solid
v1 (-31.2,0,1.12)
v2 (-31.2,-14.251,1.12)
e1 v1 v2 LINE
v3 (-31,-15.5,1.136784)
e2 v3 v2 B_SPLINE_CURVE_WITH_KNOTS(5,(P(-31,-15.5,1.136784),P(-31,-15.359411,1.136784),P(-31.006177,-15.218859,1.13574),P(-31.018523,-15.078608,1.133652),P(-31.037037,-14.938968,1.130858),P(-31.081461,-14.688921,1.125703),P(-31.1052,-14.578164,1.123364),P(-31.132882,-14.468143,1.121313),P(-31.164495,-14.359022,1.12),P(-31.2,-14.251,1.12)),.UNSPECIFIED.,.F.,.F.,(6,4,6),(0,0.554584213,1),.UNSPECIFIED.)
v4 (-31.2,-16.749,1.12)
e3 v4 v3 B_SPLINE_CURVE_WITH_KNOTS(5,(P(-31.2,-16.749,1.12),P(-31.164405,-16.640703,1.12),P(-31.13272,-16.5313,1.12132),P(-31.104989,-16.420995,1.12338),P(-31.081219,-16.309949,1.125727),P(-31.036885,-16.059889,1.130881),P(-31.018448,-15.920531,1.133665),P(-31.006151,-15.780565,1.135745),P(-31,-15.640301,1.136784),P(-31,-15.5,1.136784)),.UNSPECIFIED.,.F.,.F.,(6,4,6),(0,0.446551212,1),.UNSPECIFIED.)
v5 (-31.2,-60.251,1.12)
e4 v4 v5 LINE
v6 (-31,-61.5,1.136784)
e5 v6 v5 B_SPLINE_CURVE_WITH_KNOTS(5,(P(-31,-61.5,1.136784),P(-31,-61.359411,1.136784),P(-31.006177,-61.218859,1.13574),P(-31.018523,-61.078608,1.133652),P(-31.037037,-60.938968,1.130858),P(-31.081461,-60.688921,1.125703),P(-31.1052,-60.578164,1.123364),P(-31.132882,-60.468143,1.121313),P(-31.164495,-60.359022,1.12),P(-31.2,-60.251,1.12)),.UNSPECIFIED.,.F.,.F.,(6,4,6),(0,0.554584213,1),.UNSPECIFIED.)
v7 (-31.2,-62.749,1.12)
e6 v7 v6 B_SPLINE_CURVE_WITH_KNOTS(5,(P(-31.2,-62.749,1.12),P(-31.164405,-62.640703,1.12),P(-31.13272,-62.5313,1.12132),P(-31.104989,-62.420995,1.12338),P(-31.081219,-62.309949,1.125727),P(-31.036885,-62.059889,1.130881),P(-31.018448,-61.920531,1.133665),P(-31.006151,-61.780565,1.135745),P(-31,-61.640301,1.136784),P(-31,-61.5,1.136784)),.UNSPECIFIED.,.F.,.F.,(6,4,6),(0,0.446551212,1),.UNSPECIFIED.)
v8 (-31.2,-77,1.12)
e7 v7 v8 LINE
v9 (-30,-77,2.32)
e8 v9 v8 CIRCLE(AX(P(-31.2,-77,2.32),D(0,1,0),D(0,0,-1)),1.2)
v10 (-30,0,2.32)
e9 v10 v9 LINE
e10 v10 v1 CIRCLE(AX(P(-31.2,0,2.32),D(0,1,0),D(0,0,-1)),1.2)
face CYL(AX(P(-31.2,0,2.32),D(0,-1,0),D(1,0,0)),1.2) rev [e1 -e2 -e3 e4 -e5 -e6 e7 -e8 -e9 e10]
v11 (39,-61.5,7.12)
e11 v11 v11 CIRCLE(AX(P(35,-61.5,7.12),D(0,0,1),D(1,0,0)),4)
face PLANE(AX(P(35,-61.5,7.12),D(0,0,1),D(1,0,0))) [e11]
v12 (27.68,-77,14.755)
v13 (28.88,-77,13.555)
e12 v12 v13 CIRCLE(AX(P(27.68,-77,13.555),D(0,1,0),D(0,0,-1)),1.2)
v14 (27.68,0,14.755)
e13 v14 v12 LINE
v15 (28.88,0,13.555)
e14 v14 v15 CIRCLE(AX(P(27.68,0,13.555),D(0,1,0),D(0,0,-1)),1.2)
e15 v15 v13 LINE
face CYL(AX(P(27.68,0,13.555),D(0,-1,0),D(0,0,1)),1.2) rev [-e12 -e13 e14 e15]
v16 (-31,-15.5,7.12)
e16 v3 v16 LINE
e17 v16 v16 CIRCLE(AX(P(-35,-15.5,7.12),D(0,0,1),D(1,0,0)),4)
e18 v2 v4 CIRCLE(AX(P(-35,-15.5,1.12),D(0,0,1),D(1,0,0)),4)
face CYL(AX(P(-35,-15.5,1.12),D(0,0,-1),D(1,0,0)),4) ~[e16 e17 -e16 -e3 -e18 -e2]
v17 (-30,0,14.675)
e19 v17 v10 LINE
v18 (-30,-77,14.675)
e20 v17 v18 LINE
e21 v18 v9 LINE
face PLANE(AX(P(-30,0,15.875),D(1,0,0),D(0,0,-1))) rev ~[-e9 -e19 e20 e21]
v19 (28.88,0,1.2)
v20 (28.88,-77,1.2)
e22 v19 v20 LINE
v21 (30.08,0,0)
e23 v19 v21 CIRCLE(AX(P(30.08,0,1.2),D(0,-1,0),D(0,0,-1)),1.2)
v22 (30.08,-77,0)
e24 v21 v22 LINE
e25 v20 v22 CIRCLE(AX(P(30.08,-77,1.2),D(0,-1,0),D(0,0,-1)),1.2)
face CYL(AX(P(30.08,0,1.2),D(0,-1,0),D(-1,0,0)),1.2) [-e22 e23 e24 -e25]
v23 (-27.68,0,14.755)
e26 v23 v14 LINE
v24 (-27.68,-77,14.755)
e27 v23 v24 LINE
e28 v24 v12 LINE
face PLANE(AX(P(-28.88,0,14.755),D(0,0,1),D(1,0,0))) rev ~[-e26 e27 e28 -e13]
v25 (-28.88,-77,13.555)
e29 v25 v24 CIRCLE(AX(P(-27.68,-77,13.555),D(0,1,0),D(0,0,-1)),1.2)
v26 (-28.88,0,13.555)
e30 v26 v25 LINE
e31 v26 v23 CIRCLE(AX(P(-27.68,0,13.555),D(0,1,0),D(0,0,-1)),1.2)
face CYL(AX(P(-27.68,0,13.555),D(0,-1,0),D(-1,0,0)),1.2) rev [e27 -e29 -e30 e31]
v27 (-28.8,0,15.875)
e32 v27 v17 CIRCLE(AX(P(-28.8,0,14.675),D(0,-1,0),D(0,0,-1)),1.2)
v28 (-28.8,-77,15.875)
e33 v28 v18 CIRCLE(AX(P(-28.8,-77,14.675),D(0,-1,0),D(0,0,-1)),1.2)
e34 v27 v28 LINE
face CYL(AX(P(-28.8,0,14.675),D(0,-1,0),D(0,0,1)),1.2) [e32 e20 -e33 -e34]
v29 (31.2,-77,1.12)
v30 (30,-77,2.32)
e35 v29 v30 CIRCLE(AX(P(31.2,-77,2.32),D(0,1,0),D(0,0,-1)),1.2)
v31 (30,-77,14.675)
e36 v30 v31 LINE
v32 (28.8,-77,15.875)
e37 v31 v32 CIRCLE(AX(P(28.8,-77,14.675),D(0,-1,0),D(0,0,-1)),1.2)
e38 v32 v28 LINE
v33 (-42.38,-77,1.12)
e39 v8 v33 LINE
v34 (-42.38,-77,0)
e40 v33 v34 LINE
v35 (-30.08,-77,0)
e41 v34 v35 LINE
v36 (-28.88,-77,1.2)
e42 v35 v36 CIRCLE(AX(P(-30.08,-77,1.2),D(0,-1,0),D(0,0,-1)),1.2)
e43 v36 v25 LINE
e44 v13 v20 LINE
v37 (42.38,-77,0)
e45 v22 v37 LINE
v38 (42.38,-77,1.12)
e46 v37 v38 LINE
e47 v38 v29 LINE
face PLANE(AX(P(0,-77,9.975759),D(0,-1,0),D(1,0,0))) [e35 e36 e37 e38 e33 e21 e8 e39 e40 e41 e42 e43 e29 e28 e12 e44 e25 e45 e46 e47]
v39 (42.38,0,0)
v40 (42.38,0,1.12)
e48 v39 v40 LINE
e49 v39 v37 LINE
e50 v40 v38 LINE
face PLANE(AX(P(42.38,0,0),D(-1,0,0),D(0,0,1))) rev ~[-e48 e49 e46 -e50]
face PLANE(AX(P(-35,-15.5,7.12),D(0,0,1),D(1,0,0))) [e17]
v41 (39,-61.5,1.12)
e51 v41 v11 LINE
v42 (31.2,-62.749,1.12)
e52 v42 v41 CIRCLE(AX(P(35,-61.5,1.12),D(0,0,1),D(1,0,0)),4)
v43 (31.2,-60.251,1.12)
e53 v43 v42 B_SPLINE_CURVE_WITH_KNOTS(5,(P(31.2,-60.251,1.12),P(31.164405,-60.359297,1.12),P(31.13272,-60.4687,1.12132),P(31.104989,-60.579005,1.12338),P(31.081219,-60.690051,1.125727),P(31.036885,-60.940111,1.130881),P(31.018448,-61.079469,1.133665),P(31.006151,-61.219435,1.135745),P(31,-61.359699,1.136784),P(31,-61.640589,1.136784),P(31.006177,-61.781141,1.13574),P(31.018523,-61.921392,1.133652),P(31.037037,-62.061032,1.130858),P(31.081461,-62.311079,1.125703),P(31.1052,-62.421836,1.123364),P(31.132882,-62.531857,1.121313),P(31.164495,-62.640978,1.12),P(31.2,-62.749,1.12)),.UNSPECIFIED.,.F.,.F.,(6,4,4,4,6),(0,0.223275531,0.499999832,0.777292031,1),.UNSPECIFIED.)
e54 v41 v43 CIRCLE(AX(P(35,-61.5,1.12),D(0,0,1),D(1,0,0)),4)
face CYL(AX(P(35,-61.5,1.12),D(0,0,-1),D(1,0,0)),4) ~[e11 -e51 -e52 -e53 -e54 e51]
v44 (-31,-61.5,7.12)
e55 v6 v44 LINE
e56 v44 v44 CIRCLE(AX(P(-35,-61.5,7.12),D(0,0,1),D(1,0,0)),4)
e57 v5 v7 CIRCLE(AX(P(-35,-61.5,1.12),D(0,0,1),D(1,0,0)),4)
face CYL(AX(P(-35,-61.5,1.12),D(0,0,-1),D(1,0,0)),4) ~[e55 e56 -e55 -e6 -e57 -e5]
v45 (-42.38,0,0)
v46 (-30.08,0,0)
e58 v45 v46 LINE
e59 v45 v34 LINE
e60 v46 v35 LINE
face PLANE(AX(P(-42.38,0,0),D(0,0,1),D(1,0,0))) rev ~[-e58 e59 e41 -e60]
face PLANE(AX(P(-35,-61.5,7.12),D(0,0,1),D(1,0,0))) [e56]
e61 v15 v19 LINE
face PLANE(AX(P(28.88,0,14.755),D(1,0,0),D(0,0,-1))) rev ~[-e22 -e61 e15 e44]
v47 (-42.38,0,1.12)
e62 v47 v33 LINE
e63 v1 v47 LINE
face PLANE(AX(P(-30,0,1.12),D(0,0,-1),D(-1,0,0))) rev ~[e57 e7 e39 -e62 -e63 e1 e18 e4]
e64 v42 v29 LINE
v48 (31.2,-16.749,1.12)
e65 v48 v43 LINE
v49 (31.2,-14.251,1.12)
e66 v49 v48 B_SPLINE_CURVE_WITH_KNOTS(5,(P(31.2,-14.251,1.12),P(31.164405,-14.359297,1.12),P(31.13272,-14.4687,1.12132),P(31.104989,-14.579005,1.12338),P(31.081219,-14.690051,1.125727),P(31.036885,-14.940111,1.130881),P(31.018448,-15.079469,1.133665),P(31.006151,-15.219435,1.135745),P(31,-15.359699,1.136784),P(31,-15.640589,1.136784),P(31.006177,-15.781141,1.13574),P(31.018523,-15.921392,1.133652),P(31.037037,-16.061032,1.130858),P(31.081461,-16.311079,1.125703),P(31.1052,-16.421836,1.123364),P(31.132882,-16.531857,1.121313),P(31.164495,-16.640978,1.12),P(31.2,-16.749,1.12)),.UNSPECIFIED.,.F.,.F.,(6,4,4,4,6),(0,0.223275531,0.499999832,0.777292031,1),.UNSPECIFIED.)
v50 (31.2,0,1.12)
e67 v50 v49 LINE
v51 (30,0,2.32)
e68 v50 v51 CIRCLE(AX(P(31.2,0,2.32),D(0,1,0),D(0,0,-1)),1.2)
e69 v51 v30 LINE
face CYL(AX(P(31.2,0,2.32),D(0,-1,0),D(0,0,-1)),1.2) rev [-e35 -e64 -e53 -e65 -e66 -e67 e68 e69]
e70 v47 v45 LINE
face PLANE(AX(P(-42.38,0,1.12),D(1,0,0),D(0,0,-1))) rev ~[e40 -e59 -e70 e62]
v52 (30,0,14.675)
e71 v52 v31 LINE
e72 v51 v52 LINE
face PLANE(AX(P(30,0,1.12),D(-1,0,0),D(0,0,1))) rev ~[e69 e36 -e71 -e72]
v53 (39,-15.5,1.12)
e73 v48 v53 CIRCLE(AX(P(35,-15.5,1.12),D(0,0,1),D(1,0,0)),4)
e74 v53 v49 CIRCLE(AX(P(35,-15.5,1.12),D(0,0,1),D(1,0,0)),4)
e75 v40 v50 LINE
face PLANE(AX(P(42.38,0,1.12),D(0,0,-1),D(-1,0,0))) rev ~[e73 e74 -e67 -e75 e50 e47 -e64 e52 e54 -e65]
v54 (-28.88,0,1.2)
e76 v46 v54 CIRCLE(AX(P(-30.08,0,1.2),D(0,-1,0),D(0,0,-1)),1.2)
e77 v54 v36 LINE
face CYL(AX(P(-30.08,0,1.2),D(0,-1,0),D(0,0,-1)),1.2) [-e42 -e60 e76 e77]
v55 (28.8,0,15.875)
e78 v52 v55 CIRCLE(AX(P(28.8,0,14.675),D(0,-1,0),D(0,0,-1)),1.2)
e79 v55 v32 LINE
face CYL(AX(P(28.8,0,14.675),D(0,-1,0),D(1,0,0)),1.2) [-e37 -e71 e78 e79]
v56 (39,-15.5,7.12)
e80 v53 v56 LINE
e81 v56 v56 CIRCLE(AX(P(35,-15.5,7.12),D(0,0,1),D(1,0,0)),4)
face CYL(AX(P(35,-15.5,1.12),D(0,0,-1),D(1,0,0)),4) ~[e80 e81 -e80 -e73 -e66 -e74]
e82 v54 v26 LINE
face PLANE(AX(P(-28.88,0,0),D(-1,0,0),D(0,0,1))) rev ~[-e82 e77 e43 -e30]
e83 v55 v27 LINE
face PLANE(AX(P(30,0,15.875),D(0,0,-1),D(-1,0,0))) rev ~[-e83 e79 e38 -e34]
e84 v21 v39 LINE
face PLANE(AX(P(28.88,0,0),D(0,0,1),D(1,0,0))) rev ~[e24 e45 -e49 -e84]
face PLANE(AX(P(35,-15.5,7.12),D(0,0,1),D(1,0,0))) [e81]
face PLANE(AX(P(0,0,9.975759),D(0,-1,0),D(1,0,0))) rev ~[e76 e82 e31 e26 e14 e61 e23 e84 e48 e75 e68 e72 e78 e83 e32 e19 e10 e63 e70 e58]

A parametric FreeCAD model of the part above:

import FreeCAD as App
import Part
import Sketcher

V = App.Vector
Q = App.Units.Quantity


def edges_at(feature, points):
    """Names of the edges that pass closest to the given points."""
    edges = feature.Shape.Edges
    near = lambda p: min(range(len(edges)), key=lambda i: edges[i].distToShape(Part.Vertex(*p))[0])
    return sorted({f"Edge{near(p) + 1}" for p in points})

doc = App.newDocument("Part")
body = doc.addObject("PartDesign::Body", "Body")

# Sketch on XZ plane
sketch1 = body.newObject("Sketcher::SketchObject", "Sketch")
sketch1.AttachmentSupport = (doc.getObject("XZ_Plane"), [""])
sketch1.MapMode = "FlatFace"
sketch1.addGeometry([
    Part.LineSegment(V(-42.4, 1.1, 0), V(-42.4, 0, 0)),  # 0
    Part.LineSegment(V(-42.4, 0, 0), V(-28.9, 0, 0)),  # 1
    Part.LineSegment(V(-28.9, 0, 0), V(-28.9, 14.8, 0)),  # 2
    Part.LineSegment(V(-28.9, 14.8, 0), V(28.9, 14.8, 0)),  # 3
    Part.LineSegment(V(28.9, 14.8, 0), V(28.9, 0, 0)),  # 4
    Part.LineSegment(V(28.9, 0, 0), V(42.4, 0, 0)),  # 5
    Part.LineSegment(V(42.4, 0, 0), V(42.4, 1.1, 0)),  # 6
    Part.LineSegment(V(42.4, 1.1, 0), V(30, 1.1, 0)),  # 7
    Part.LineSegment(V(30, 1.1, 0), V(30, 15.9, 0)),  # 8
    Part.LineSegment(V(30, 15.9, 0), V(-30, 15.9, 0)),  # 9
    Part.LineSegment(V(-30, 15.9, 0), V(-30, 1.1, 0)),  # 10
    Part.LineSegment(V(-30, 1.1, 0), V(-42.4, 1.1, 0)),  # 11
], False)
sketch1.addConstraint([
    Sketcher.Constraint("Coincident", 0, 2, 1, 1),
    Sketcher.Constraint("Coincident", 1, 2, 2, 1),
    Sketcher.Constraint("Coincident", 2, 2, 3, 1),
    Sketcher.Constraint("Coincident", 3, 2, 4, 1),
    Sketcher.Constraint("Coincident", 4, 2, 5, 1),
    Sketcher.Constraint("Coincident", 5, 2, 6, 1),
    Sketcher.Constraint("Coincident", 6, 2, 7, 1),
    Sketcher.Constraint("Coincident", 7, 2, 8, 1),
    Sketcher.Constraint("Coincident", 8, 2, 9, 1),
    Sketcher.Constraint("Coincident", 9, 2, 10, 1),
    Sketcher.Constraint("Coincident", 10, 2, 11, 1),
    Sketcher.Constraint("Coincident", 11, 2, 0, 1),
    Sketcher.Constraint("Vertical", 0),
    Sketcher.Constraint("Horizontal", 1),
    Sketcher.Constraint("Vertical", 2),
    Sketcher.Constraint("Horizontal", 3),
    Sketcher.Constraint("Vertical", 4),
    Sketcher.Constraint("Horizontal", 5),
    Sketcher.Constraint("Vertical", 6),
    Sketcher.Constraint("Horizontal", 7),
    Sketcher.Constraint("Vertical", 8),
    Sketcher.Constraint("Horizontal", 9),
    Sketcher.Constraint("Vertical", 10),
    Sketcher.Constraint("Horizontal", 11),
    Sketcher.Constraint("Symmetric", 1, 2, 4, 2, -1, 1),
    Sketcher.Constraint("Symmetric", 0, 2, 5, 2, -2),
    Sketcher.Constraint("Symmetric", 7, 2, 10, 2, -2),
    Sketcher.Constraint("Equal", 4, 8),
    Sketcher.Constraint("DistanceX", 9, 2, 9, 1, Q("60 mm")),
    Sketcher.Constraint("DistanceX", 1, 1, 1, 2, Q("13.5 mm")),
    Sketcher.Constraint("DistanceX", 3, 1, 3, 2, Q("57.76 mm")),
    Sketcher.Constraint("DistanceY", 0, 2, 0, 1, Q("1.12 mm")),
    Sketcher.Constraint("DistanceY", 2, 1, 2, 2, Q("14.755 mm")),
])
pad1 = body.newObject("PartDesign::Pad", "Pad")
pad1.Profile = sketch1
pad1.Length = 77
doc.recompute()

fillet = body.newObject("PartDesign::Fillet", "Fillet")
fillet.Base = (pad1, edges_at(pad1, [
    (-30, -38.5, 15.875),
    (30, -38.5, 15.875),
    (28.88, -38.5, 0),
    (-28.88, -38.5, 0),
    (28.88, -38.5, 14.755),
    (-28.88, -38.5, 14.755),
    (-30, -38.5, 1.12),
    (30, -38.5, 1.12),
]))
fillet.Radius = 1.2

# Sketch on XY plane
sketch2 = body.newObject("Sketcher::SketchObject", "Sketch001")
sketch2.AttachmentSupport = (doc.getObject("XY_Plane"), [""])
sketch2.MapMode = "FlatFace"
sketch2.AttachmentOffset = App.Placement(V(0, 0, 1.12), App.Rotation())
sketch2.addGeometry([
    Part.Circle(V(35, -15.5, 0), V(0, 0, 1), 4),
    Part.Circle(V(35, -61.5, 0), V(0, 0, 1), 4),
    Part.Circle(V(-35, -15.5, 0), V(0, 0, 1), 4),
    Part.Circle(V(-35, -61.5, 0), V(0, 0, 1), 4),
], False)
sketch2.addConstraint([
    Sketcher.Constraint("Equal", 0, 1),
    Sketcher.Constraint("Equal", 1, 2),
    Sketcher.Constraint("Equal", 2, 3),
    Sketcher.Constraint("Symmetric", 0, 3, 2, 3, -2),
    Sketcher.Constraint("Symmetric", 1, 3, 3, 3, -2),
    Sketcher.Constraint("Vertical", 0, 3, 1, 3),
    Sketcher.Constraint("Diameter", 0, Q("8 mm")),
    Sketcher.Constraint("DistanceX", -1, 1, 0, 3, Q("35 mm")),
    Sketcher.Constraint("DistanceY", 1, 3, 0, 3, Q("46 mm")),
    Sketcher.Constraint("DistanceY", 0, 3, -1, 1, Q("15.5 mm")),
])
pad2 = body.newObject("PartDesign::Pad", "Pad001")
pad2.Profile = sketch2
pad2.Length = 6

doc.recompute()
